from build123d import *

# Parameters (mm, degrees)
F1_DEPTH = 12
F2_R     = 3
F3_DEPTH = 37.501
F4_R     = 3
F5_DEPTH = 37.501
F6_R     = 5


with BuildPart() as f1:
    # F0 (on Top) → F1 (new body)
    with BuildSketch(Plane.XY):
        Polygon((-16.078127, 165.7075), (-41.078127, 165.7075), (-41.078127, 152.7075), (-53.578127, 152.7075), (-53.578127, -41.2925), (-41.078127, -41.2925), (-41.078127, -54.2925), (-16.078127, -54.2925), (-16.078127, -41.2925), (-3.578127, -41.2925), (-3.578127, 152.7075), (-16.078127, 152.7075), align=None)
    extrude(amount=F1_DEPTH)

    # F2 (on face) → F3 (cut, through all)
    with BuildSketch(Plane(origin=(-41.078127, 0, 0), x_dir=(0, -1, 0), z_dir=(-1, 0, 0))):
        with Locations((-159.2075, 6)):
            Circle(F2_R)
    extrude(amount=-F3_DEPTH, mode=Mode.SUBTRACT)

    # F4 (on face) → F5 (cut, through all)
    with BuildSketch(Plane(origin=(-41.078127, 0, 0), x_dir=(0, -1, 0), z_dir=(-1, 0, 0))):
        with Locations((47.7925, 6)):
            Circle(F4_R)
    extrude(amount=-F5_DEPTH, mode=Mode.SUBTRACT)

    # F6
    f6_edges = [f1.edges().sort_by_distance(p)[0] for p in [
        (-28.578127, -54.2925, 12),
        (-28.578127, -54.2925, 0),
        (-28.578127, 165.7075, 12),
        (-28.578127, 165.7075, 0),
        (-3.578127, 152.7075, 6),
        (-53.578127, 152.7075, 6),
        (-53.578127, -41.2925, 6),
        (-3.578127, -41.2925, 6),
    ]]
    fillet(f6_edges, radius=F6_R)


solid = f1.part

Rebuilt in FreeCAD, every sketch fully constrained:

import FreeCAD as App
import Part
import Sketcher

V = App.Vector


def edges_at(feature, points):
    """Names of the edges that pass closest to the given points."""
    edges = feature.Shape.Edges
    near = lambda p: min(range(len(edges)), key=lambda i: edges[i].distToShape(Part.Vertex(*p))[0])
    return sorted({f"Edge{near(p) + 1}" for p in points})


def add_polygon(sketch, points):
    """Adds a closed chain of lines whose ends are joined by coincident constraints."""
    first, n = sketch.GeometryCount, len(points)
    for a, b in zip(points, points[1:] + points[:1]):
        sketch.addGeometry(Part.LineSegment(App.Vector(*a, 0), App.Vector(*b, 0)), False)
    for i in range(n):
        sketch.addConstraint(Sketcher.Constraint("Coincident", first + i, 2, first + (i + 1) % n, 1))

doc = App.newDocument("Part")
body = doc.addObject("PartDesign::Body", "Body")

sketch1 = body.newObject("Sketcher::SketchObject", "Sketch")
sketch1.AttachmentSupport = (doc.getObject("XY_Plane"), [""])
sketch1.MapMode = "FlatFace"
add_polygon(sketch1, [(-16, 166), (-41, 166), (-41, 153), (-54, 153), (-54, -41), (-41, -41), (-41, -54), (-16, -54), (-16, -41), (-4, -41), (-4, 153), (-16, 153)])
sketch1.addConstraint([
    Sketcher.Constraint("Horizontal", 0),
    Sketcher.Constraint("Vertical", 1),
    Sketcher.Constraint("Horizontal", 2),
    Sketcher.Constraint("Vertical", 3),
    Sketcher.Constraint("Horizontal", 4),
    Sketcher.Constraint("Vertical", 5),
    Sketcher.Constraint("Horizontal", 6),
    Sketcher.Constraint("Vertical", 7),
    Sketcher.Constraint("Horizontal", 8),
    Sketcher.Constraint("Vertical", 9),
    Sketcher.Constraint("Horizontal", 10),
    Sketcher.Constraint("Vertical", 11),
    Sketcher.Constraint("Horizontal", 4, 2, 7, 2),
    Sketcher.Constraint("Horizontal", 2, 2, 9, 2),
    Sketcher.Constraint("Vertical", 1, 2, 4, 2),
    Sketcher.Constraint("Vertical", 7, 2, 10, 2),
    Sketcher.Constraint("Equal", 4, 8),
    Sketcher.Constraint("Equal", 1, 5),
    Sketcher.Constraint("DistanceX", 0, 2, 0, 1, 25.0),
    Sketcher.Constraint("DistanceY", 1, 2, 1, 1, 13.0),
    Sketcher.Constraint("DistanceY", 3, 2, 3, 1, 194.0),
    Sketcher.Constraint("DistanceX", 2, 2, 2, 1, 12.5),
    Sketcher.Constraint("DistanceY", -1, 1, 0, 2, 165.7075),
    Sketcher.Constraint("DistanceX", 0, 2, -1, 1, 41.078127),
])
pad1 = body.newObject("PartDesign::Pad", "Pad")
pad1.Profile = sketch1
pad1.Length = 12

sketch2 = body.newObject("Sketcher::SketchObject", "Sketch001")
sketch2.AttachmentSupport = (doc.getObject("YZ_Plane"), [""])
sketch2.MapMode = "FlatFace"
sketch2.AttachmentOffset = App.Placement(V(0, 0, -41.078127), App.Rotation())
sketch2.addGeometry(Part.Circle(V(159.2, 6, 0), V(0, 0, 1), 3), False)
sketch2.addConstraint([
    Sketcher.Constraint("Diameter", 0, 6.0),
    Sketcher.Constraint("DistanceY", -1, 1, 0, 3, 6.0),
    Sketcher.Constraint("DistanceX", -1, 1, 0, 3, 159.2075),
])
pocket1 = body.newObject("PartDesign::Pocket", "Pocket")
pocket1.Profile = sketch2
pocket1.Type = "ThroughAll"
pocket1.Reversed = True

sketch3 = body.newObject("Sketcher::SketchObject", "Sketch002")
sketch3.AttachmentSupport = (doc.getObject("YZ_Plane"), [""])
sketch3.MapMode = "FlatFace"
sketch3.AttachmentOffset = App.Placement(V(0, 0, -41.078127), App.Rotation())
sketch3.addGeometry(Part.Circle(V(-47.8, 6, 0), V(0, 0, 1), 3), False)
sketch3.addConstraint([
    Sketcher.Constraint("Diameter", 0, 6.0),
    Sketcher.Constraint("DistanceY", -1, 1, 0, 3, 6.0),
    Sketcher.Constraint("DistanceX", 0, 3, -1, 1, 47.7925),
])
pocket2 = body.newObject("PartDesign::Pocket", "Pocket001")
pocket2.Profile = sketch3
pocket2.Type = "ThroughAll"
pocket2.Reversed = True
doc.recompute()

fillet = body.newObject("PartDesign::Fillet", "Fillet")
fillet.Base = (pocket2, edges_at(pocket2, [
    (-28.578, -54.292, 12),
    (-28.578, -54.292, 0),
    (-28.578, 165.708, 12),
    (-28.578, 165.708, 0),
    (-3.578, 152.708, 6),
    (-53.578, 152.708, 6),
    (-53.578, -41.292, 6),
    (-3.578, -41.292, 6),
]))
fillet.Radius = 5

doc.recompute()
